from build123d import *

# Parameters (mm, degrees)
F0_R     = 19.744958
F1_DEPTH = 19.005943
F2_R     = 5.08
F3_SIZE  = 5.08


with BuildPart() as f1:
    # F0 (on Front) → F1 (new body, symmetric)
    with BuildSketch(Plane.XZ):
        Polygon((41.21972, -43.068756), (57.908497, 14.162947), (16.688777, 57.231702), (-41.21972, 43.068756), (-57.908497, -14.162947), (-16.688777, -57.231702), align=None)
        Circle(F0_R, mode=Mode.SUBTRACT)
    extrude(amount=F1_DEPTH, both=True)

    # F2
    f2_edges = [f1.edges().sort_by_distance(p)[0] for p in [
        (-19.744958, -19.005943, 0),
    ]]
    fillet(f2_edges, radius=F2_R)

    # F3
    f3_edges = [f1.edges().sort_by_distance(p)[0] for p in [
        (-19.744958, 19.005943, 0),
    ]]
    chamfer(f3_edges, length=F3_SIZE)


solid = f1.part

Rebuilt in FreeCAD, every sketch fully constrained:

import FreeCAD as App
import Part
import Sketcher
Q = App.Units.Quantity


def edges_at(feature, points):
    """Names of the edges that pass closest to the given points."""
    edges = feature.Shape.Edges
    near = lambda p: min(range(len(edges)), key=lambda i: edges[i].distToShape(Part.Vertex(*p))[0])
    return sorted({f"Edge{near(p) + 1}" for p in points})

doc = App.newDocument("Part")
body = doc.addObject("PartDesign::Body", "Body")

sketch1 = doc.addObject("Sketcher::SketchObject", "Sketch")
body.addObject(sketch1)
sketch1.AttachmentSupport = (doc.XZ_Plane, [""])
sketch1.MapMode = "FlatFace"
sketch1.addGeometry([
    Part.LineSegment(App.Vector(41, -43, 0), App.Vector(58, 14, 0)),
    Part.LineSegment(App.Vector(58, 14, 0), App.Vector(17, 57, 0)),
    Part.LineSegment(App.Vector(17, 57, 0), App.Vector(-41, 43, 0)),
    Part.LineSegment(App.Vector(-41, 43, 0), App.Vector(-58, -14, 0)),
    Part.LineSegment(App.Vector(-58, -14, 0), App.Vector(-17, -57, 0)),
    Part.LineSegment(App.Vector(-17, -57, 0), App.Vector(41, -43, 0)),
    Part.Circle(App.Vector(0, 0, 0), App.Vector(0, 0, 1), 20),
], False)
sketch1.addConstraint([
    Sketcher.Constraint("Coincident", 0, 2, 1, 1),
    Sketcher.Constraint("Coincident", 1, 2, 2, 1),
    Sketcher.Constraint("Coincident", 2, 2, 3, 1),
    Sketcher.Constraint("Coincident", 3, 2, 4, 1),
    Sketcher.Constraint("Coincident", 4, 2, 5, 1),
    Sketcher.Constraint("Coincident", 5, 2, 0, 1),
    Sketcher.Constraint("Coincident", 6, 3, -1, 1),
    Sketcher.Constraint("Symmetric", 0, 2, 3, 2, -1, 1),
    Sketcher.Constraint("Symmetric", 1, 2, 4, 2, -1, 1),
    Sketcher.Constraint("Symmetric", 2, 2, 5, 2, -1, 1),
    Sketcher.Constraint("Equal", 0, 1),
    Sketcher.Constraint("Equal", 1, 2),
    Sketcher.Constraint("Diameter", 6, 39.489916),
    Sketcher.Constraint("Distance", 1, 59.615291),
    Sketcher.Constraint("DistanceX", 2, 2, -1, 1, 41.21972),
    Sketcher.Constraint("DistanceX", 1, 2, 0, 2, 41.21972),
    Sketcher.Constraint("DistanceY", 0, 2, 2, 2, 28.905809),
])
pad1 = doc.addObject("PartDesign::Pad", "Pad")
body.addObject(pad1)
pad1.Profile = sketch1
pad1.Length = 38.011886
pad1.Midplane = True
doc.recompute()

fillet = doc.addObject("PartDesign::Fillet", "Fillet")
body.addObject(fillet)
fillet.Base = (pad1, edges_at(pad1, [(-19.745, -19.006, 0)]))
fillet.Radius = Q("0.2 in")
doc.recompute()

chamfer = doc.addObject("PartDesign::Chamfer", "Chamfer")
body.addObject(chamfer)
chamfer.Base = (fillet, edges_at(fillet, [(-19.745, 19.006, 0)]))
chamfer.Size = Q("0.2 in")

doc.recompute()
